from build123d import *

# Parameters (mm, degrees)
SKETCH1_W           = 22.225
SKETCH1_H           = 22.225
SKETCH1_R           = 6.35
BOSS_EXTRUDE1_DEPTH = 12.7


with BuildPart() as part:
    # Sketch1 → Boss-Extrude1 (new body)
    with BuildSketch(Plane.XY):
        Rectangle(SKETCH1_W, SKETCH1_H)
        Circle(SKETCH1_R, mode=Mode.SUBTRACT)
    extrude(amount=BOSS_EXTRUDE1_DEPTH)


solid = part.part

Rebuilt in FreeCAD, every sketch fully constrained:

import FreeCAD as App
import Part
import Sketcher

V = App.Vector
Q = App.Units.Quantity

doc = App.newDocument("Part")
params = doc.addObject("Spreadsheet::Sheet", "Params")
for row, (alias, value) in enumerate([
    ("sketch1_diameter", "0.5 in"),
    ("sketch1_width", "0.875 in"),
    ("pad1_length", "0.5 in"),
], start=1):
    params.set(f"A{row}", alias)
    params.set(f"B{row}", "=" + value)
    params.setAlias(f"B{row}", alias)

body = doc.addObject("PartDesign::Body", "Body")

sketch1 = body.newObject("Sketcher::SketchObject", "Sketch")
sketch1.AttachmentSupport = (doc.getObject("XY_Plane"), [""])
sketch1.MapMode = "FlatFace"
sketch1.addGeometry(Part.LineSegment(V(-11.1125, 11.1125, 0), V(-11.1125, -11.1125, 0)), False)
sketch1.addGeometry(Part.LineSegment(V(-11.1125, -11.1125, 0), V(11.1125, -11.1125, 0)), False)
sketch1.addGeometry(Part.LineSegment(V(11.1125, -11.1125, 0), V(11.1125, 11.1125, 0)), False)
sketch1.addGeometry(Part.LineSegment(V(11.1125, 11.1125, 0), V(-11.1125, 11.1125, 0)), False)
sketch1.addGeometry(Part.Circle(V(0, 0, 0), V(0, 0, 1), 6.35), False)
sketch1.addConstraint(Sketcher.Constraint("Coincident", 0, 2, 1, 1))
sketch1.addConstraint(Sketcher.Constraint("Coincident", 1, 2, 2, 1))
sketch1.addConstraint(Sketcher.Constraint("Coincident", 2, 2, 3, 1))
sketch1.addConstraint(Sketcher.Constraint("Coincident", 3, 2, 0, 1))
sketch1.addConstraint(Sketcher.Constraint("Vertical", 0))
sketch1.addConstraint(Sketcher.Constraint("Horizontal", 1))
sketch1.addConstraint(Sketcher.Constraint("Vertical", 2))
sketch1.addConstraint(Sketcher.Constraint("Horizontal", 3))
sketch1.addConstraint(Sketcher.Constraint("Coincident", 4, 3, -1, 1))
sketch1.addConstraint(Sketcher.Constraint("Symmetric", 0, 2, 2, 2, -1, 1))
sketch1.addConstraint(Sketcher.Constraint("Equal", 3, 0))
sketch1.addConstraint(Sketcher.Constraint("Diameter", 4, Q("0.5 in")))
sketch1.addConstraint(Sketcher.Constraint("DistanceX", 1, 1, 1, 2, Q("0.875 in")))
sketch1.setExpression("Constraints[11]", "Params.sketch1_diameter")
sketch1.setExpression("Constraints[12]", "Params.sketch1_width")
pad1 = body.newObject("PartDesign::Pad", "Pad")
pad1.Profile = sketch1
pad1.setExpression("Length", "Params.pad1_length")

doc.recompute()
